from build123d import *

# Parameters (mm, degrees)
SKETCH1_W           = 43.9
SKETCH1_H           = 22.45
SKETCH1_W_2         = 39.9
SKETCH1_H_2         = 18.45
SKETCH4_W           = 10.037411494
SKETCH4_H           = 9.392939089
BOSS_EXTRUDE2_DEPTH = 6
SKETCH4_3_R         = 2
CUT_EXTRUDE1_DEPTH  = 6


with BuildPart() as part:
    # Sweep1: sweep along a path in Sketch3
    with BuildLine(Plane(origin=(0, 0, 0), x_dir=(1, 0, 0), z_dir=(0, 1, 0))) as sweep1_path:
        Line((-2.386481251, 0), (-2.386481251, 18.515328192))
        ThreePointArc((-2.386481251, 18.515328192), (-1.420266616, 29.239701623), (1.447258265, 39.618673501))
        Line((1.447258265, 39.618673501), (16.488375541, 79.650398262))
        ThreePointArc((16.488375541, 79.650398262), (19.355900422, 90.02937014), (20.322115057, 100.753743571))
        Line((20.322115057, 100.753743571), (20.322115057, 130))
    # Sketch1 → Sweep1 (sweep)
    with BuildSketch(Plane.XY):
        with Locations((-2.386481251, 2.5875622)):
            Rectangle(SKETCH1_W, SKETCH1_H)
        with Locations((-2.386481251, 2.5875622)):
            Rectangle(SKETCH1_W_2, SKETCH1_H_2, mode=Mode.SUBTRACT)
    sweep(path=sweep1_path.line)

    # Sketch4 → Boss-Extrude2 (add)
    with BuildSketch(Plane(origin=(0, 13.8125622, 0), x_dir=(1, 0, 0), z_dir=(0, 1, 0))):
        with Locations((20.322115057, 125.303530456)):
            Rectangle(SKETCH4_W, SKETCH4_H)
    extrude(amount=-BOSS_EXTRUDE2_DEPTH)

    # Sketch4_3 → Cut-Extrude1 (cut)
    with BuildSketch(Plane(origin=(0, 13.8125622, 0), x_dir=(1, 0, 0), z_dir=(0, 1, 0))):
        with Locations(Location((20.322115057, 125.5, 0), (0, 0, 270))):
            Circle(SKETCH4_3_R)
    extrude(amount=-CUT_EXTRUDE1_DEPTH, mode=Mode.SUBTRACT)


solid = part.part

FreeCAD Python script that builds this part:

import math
import FreeCAD as App
import Part
import Sketcher
from FreeCAD import Vector


def add_polygon(sketch, points):
    """Adds a closed chain of lines whose ends are joined by coincident constraints."""
    first, n = sketch.GeometryCount, len(points)
    for a, b in zip(points, points[1:] + points[:1]):
        sketch.addGeometry(Part.LineSegment(App.Vector(*a, 0), App.Vector(*b, 0)), False)
    for i in range(n):
        sketch.addConstraint(Sketcher.Constraint("Coincident", first + i, 2, first + (i + 1) % n, 1))

doc = App.newDocument("Part")
body = doc.addObject("PartDesign::Body", "Body")

# Sketch on XY plane
sketch1 = body.newObject("Sketcher::SketchObject", "Sketch")
sketch1.AttachmentSupport = (doc.getObject("XY_Plane"), [""])
sketch1.MapMode = "FlatFace"
add_polygon(sketch1, [(-24.336481, 13.812562), (-24.336481, -8.637438), (19.563519, -8.637438), (19.563519, 13.812562)])  # lines 0-3
add_polygon(sketch1, [(17.563519, -6.637438), (-22.336481, -6.637438), (-22.336481, 11.812562), (17.563519, 11.812562)])  # lines 4-7
sketch1.addConstraint(Sketcher.Constraint("Vertical", 0))
sketch1.addConstraint(Sketcher.Constraint("Horizontal", 1))
sketch1.addConstraint(Sketcher.Constraint("Vertical", 2))
sketch1.addConstraint(Sketcher.Constraint("Horizontal", 3))
sketch1.addConstraint(Sketcher.Constraint("Horizontal", 4))
sketch1.addConstraint(Sketcher.Constraint("Vertical", 5))
sketch1.addConstraint(Sketcher.Constraint("Horizontal", 6))
sketch1.addConstraint(Sketcher.Constraint("Vertical", 7))
sketch1.addConstraint(Sketcher.Constraint("DistanceX", 1, 1, 1, 2, 43.9))
sketch1.addConstraint(Sketcher.Constraint("DistanceX", 4, 2, 4, 1, 39.9))
sketch1.addConstraint(Sketcher.Constraint("DistanceX", 0, 2, 4, 2, 2.0))
sketch1.addConstraint(Sketcher.Constraint("DistanceY", 0, 2, 4, 2, 2.0))
sketch1.addConstraint(Sketcher.Constraint("DistanceY", 5, 2, 3, 2, 2.0))
sketch1.addConstraint(Sketcher.Constraint("DistanceY", 0, 2, 0, 1, 22.45))
sketch1.addConstraint(Sketcher.Constraint("DistanceX", 0, 2, -1, 1, 24.336481))
sketch1.addConstraint(Sketcher.Constraint("DistanceY", 0, 2, -1, 1, 8.637438))

# Sketch on XZ plane
sketch2 = body.newObject("Sketcher::SketchObject", "Sketch001")
sketch2.AttachmentSupport = (doc.getObject("XZ_Plane"), [""])
sketch2.MapMode = "FlatFace"
sketch2.addGeometry(Part.LineSegment(Vector(-2.386481, 0, 0), Vector(-2.386481, -18.515328, 0)), False)
sketch2.addGeometry(Part.ArcOfCircle(Part.Circle(Vector(57.613519, -18.515328, 0), Vector(0, 0, 1), 60), math.radians(180), math.radians(200.592702)), False)
sketch2.addGeometry(Part.LineSegment(Vector(1.447258, -39.618674, 0), Vector(16.488376, -79.650398, 0)), False)
sketch2.addGeometry(Part.ArcOfCircle(Part.Circle(Vector(-39.677885, -100.753744, 0), Vector(0, 0, 1), 60), math.radians(0), math.radians(20.592702)), False)
sketch2.addGeometry(Part.LineSegment(Vector(20.322115, -100.753744, 0), Vector(20.322115, -130, 0)), False)
sketch2.addConstraint(Sketcher.Constraint("Tangent", 0, 2, 1, 1))
sketch2.addConstraint(Sketcher.Constraint("Tangent", 1, 2, 2, 1))
sketch2.addConstraint(Sketcher.Constraint("Tangent", 2, 2, 3, 2))
sketch2.addConstraint(Sketcher.Constraint("Tangent", 3, 1, 4, 1))
sketch2.addConstraint(Sketcher.Constraint("Vertical", 0))
sketch2.addConstraint(Sketcher.Constraint("Vertical", 4))
sketch2.addConstraint(Sketcher.Constraint("Equal", 1, 3))
sketch2.addConstraint(Sketcher.Constraint("PointOnObject", 0, 1, -1))
sketch2.addConstraint(Sketcher.Constraint("Radius", 1, 60.0))
sketch2.addConstraint(Sketcher.Constraint("DistanceY", 4, 2, -1, 1, 130.0))
sketch2.addConstraint(Sketcher.Constraint("DistanceY", 0, 2, 0, 1, 18.515328))
sketch2.addConstraint(Sketcher.Constraint("DistanceY", 2, 2, -1, 1, 79.650398))
sketch2.addConstraint(Sketcher.Constraint("Distance", 2, 42.76417))
sketch2.addConstraint(Sketcher.Constraint("DistanceX", -1, 1, 1, 3, 57.613519))
doc.recompute()

additivepipe = body.newObject("PartDesign::AdditivePipe", "AdditivePipe")
additivepipe.Profile = sketch1
additivepipe.Spine = (sketch2, ["Edge1", "Edge2", "Edge3", "Edge4", "Edge5"])

# Sketch on XZ plane
sketch3 = body.newObject("Sketcher::SketchObject", "Sketch002")
sketch3.AttachmentSupport = (doc.getObject("XZ_Plane"), [""])
sketch3.MapMode = "FlatFace"
sketch3.AttachmentOffset = App.Placement(Vector(0, 0, -13.812562), App.Rotation())
add_polygon(sketch3, [(15.303409, -130), (15.303409, -120.607061), (25.340821, -120.607061), (25.340821, -130)])  # lines 0-3
sketch3.addConstraint(Sketcher.Constraint("Vertical", 0))
sketch3.addConstraint(Sketcher.Constraint("Horizontal", 1))
sketch3.addConstraint(Sketcher.Constraint("Vertical", 2))
sketch3.addConstraint(Sketcher.Constraint("Horizontal", 3))
sketch3.addConstraint(Sketcher.Constraint("DistanceY", 2, 2, -1, 1, 130.0))
sketch3.addConstraint(Sketcher.Constraint("DistanceX", 1, 1, 1, 2, 10.037411))
sketch3.addConstraint(Sketcher.Constraint("DistanceY", 0, 1, 0, 2, 9.392939))
sketch3.addConstraint(Sketcher.Constraint("DistanceX", -1, 1, 0, 2, 15.303409))
pad1 = body.newObject("PartDesign::Pad", "Pad")
pad1.Profile = sketch3
pad1.Length = 6

# Sketch on XZ plane
sketch4 = body.newObject("Sketcher::SketchObject", "Sketch003")
sketch4.AttachmentSupport = (doc.getObject("XZ_Plane"), [""])
sketch4.MapMode = "FlatFace"
sketch4.AttachmentOffset = App.Placement(Vector(0, 0, -13.812562), App.Rotation())
sketch4.addGeometry(Part.Circle(Vector(20.322115, -125.5, 0), Vector(0, 0, 1), 2), False)
sketch4.addConstraint(Sketcher.Constraint("Diameter", 0, 4.0))
sketch4.addConstraint(Sketcher.Constraint("DistanceY", 0, 3, -1, 1, 125.5))
sketch4.addConstraint(Sketcher.Constraint("DistanceX", -1, 1, 0, 3, 20.322115))
pocket1 = body.newObject("PartDesign::Pocket", "Pocket")
pocket1.Profile = sketch4
pocket1.Length = 6
pocket1.Reversed = True

doc.recompute()
